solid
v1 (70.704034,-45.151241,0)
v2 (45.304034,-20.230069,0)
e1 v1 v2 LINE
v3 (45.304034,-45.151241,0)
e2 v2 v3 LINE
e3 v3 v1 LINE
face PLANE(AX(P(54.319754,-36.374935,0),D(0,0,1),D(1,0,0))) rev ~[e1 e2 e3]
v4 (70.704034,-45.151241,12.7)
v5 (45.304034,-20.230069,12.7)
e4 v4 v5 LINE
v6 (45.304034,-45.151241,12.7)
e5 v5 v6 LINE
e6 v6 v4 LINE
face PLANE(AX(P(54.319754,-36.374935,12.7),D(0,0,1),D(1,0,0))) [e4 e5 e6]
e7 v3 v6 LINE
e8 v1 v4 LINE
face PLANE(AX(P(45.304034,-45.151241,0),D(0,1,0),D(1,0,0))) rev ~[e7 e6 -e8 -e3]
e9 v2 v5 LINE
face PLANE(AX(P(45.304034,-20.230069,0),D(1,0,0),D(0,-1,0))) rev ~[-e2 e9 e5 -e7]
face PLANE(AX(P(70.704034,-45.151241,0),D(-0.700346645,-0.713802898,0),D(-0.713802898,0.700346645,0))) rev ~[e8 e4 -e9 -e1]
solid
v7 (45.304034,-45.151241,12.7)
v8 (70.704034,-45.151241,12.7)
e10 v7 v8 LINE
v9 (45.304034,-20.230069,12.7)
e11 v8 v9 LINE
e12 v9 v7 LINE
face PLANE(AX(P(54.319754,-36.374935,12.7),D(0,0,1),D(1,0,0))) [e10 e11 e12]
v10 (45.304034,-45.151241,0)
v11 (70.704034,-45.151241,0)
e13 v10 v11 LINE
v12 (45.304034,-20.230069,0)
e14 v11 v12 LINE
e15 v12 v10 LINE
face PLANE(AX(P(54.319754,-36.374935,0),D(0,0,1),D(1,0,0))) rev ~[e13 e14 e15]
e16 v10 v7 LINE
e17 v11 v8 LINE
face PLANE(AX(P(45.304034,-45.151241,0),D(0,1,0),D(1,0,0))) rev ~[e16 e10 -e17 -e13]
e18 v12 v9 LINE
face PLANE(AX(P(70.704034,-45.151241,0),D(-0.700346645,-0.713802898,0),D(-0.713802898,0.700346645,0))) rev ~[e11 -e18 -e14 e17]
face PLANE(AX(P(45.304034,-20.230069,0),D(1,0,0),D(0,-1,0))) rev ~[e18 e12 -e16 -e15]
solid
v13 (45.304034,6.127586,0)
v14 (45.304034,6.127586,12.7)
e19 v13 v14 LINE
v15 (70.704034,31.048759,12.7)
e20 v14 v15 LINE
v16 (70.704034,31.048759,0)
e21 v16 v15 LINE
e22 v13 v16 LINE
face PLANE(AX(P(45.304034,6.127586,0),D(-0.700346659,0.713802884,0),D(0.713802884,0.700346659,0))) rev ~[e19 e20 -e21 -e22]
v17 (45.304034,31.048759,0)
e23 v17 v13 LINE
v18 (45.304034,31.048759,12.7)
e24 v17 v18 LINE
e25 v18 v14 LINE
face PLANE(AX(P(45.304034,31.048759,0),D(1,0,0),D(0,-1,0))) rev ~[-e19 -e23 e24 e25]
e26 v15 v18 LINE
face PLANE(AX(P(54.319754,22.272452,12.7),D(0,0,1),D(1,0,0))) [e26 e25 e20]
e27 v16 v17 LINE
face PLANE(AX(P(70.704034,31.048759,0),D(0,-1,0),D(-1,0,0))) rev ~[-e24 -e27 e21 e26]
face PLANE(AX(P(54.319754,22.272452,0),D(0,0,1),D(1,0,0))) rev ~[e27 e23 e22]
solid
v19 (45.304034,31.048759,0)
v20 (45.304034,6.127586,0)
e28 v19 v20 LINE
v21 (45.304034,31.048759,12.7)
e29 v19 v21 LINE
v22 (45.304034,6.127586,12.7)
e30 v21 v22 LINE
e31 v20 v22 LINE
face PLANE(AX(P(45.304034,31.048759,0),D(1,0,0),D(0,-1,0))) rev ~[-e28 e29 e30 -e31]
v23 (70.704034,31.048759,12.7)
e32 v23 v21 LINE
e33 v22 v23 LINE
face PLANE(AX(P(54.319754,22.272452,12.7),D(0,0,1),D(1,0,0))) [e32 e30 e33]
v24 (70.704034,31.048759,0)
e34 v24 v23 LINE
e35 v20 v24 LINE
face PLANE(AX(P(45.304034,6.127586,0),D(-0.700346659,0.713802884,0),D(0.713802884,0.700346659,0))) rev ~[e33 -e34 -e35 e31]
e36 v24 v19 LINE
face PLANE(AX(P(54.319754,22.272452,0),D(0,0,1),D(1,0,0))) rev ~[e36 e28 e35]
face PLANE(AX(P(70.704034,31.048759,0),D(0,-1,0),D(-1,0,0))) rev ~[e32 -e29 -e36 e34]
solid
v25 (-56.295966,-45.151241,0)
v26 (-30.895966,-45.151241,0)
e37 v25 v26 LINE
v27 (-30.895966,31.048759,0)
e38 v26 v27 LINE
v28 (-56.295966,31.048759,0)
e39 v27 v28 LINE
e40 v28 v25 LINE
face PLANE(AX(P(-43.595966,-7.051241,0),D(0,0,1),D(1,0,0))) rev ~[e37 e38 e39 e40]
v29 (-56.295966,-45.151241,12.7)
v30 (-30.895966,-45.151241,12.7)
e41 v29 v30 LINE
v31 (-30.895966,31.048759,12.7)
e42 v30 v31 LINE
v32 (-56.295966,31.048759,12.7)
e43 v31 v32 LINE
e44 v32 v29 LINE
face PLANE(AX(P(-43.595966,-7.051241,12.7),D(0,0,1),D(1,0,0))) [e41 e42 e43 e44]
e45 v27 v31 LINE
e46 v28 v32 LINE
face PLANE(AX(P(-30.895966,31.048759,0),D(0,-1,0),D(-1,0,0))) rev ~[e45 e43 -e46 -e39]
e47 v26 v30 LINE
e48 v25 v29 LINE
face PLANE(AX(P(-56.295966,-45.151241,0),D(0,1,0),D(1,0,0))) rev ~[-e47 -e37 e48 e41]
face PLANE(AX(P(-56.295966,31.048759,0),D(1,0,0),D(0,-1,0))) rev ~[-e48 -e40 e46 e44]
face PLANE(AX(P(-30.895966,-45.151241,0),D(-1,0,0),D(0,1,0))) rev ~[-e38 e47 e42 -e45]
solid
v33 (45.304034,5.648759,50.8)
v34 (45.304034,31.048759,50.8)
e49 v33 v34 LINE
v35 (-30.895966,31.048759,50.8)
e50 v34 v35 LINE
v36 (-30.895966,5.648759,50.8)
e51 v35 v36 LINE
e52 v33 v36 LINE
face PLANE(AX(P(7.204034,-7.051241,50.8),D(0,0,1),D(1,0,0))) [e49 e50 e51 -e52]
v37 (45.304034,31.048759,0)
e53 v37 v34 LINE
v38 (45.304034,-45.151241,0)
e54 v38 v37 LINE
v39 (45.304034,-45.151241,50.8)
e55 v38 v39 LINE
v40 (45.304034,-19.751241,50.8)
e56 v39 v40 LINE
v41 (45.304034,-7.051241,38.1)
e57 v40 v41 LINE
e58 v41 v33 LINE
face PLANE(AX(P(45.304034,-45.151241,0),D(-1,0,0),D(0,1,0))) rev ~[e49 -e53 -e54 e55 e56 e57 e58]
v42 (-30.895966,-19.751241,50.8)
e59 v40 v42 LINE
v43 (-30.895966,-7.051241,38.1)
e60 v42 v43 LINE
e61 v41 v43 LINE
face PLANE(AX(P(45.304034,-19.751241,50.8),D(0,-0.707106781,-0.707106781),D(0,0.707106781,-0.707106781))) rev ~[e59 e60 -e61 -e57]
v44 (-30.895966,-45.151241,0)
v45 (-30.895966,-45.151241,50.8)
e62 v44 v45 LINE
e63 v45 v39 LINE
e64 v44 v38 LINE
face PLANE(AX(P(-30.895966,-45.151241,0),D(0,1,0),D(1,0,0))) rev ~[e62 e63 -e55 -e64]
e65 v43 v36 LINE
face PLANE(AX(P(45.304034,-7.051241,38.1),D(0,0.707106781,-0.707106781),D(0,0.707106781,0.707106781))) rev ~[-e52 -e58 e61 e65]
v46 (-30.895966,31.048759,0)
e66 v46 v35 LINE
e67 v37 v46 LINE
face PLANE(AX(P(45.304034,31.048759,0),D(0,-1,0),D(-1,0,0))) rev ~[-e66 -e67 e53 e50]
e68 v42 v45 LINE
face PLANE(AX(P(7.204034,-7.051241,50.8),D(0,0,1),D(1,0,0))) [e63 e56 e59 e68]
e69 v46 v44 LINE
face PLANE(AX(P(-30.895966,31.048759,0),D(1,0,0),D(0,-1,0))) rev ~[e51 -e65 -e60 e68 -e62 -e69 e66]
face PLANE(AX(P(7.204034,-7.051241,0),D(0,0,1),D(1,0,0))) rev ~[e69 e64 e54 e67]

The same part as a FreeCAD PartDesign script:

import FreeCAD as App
import Part
import Sketcher
Q = App.Units.Quantity

doc = App.newDocument("Part")
body = doc.addObject("PartDesign::Body", "Body")
body.AllowCompound = True

# Sketch on XY plane
sketch1 = doc.addObject("Sketcher::SketchObject", "Sketch")
body.addObject(sketch1)
sketch1.AttachmentSupport = (doc.XY_Plane, [""])
sketch1.MapMode = "FlatFace"
sketch1.addGeometry(Part.LineSegment(App.Vector(70.704034, -45.151241, 0), App.Vector(45.304034, -20.230069, 0)), False)
sketch1.addGeometry(Part.LineSegment(App.Vector(45.304034, -20.230069, 0), App.Vector(45.304034, -45.151241, 0)), False)
sketch1.addGeometry(Part.LineSegment(App.Vector(45.304034, -45.151241, 0), App.Vector(70.704034, -45.151241, 0)), False)
sketch1.addGeometry(Part.LineSegment(App.Vector(70.704034, 31.048759, 0), App.Vector(45.304034, 31.048759, 0)), False)
sketch1.addGeometry(Part.LineSegment(App.Vector(45.304034, 31.048759, 0), App.Vector(45.304034, 6.127586, 0)), False)
sketch1.addGeometry(Part.LineSegment(App.Vector(45.304034, 6.127586, 0), App.Vector(70.704034, 31.048759, 0)), False)
sketch1.addConstraint(Sketcher.Constraint("Coincident", 0, 2, 1, 1))
sketch1.addConstraint(Sketcher.Constraint("Coincident", 1, 2, 2, 1))
sketch1.addConstraint(Sketcher.Constraint("Coincident", 2, 2, 0, 1))
sketch1.addConstraint(Sketcher.Constraint("Coincident", 3, 2, 4, 1))
sketch1.addConstraint(Sketcher.Constraint("Coincident", 4, 2, 5, 1))
sketch1.addConstraint(Sketcher.Constraint("Coincident", 5, 2, 3, 1))
sketch1.addConstraint(Sketcher.Constraint("Vertical", 1))
sketch1.addConstraint(Sketcher.Constraint("Horizontal", 2))
sketch1.addConstraint(Sketcher.Constraint("Horizontal", 3))
sketch1.addConstraint(Sketcher.Constraint("Vertical", 4))
sketch1.addConstraint(Sketcher.Constraint("Vertical", 1, 2, 3, 2))
sketch1.addConstraint(Sketcher.Constraint("Vertical", 2, 2, 5, 2))
sketch1.addConstraint(Sketcher.Constraint("Equal", 1, 4))
sketch1.addConstraint(Sketcher.Constraint("DistanceX", 2, 1, 2, 2, Q("1 in")))
sketch1.addConstraint(Sketcher.Constraint("DistanceY", 1, 2, 3, 2, Q("3 in")))
sketch1.addConstraint(Sketcher.Constraint("DistanceY", 1, 2, 1, 1, 24.921172))
sketch1.addConstraint(Sketcher.Constraint("DistanceY", 0, 2, -1, 1, 20.230069))
sketch1.addConstraint(Sketcher.Constraint("DistanceX", -1, 1, 0, 2, 45.304034))
pad1 = doc.addObject("PartDesign::Pad", "Pad")
body.addObject(pad1)
pad1.Profile = sketch1
pad1.Length = Q("0.5 in")
body2 = doc.addObject("PartDesign::Body", "Body001")
body2.AllowCompound = True

# Sketch on XY plane
sketch2 = doc.addObject("Sketcher::SketchObject", "Sketch001")
body2.addObject(sketch2)
sketch2.AttachmentSupport = (doc.getObject("XY_Plane001"), [""])
sketch2.MapMode = "FlatFace"
sketch2.addGeometry(Part.LineSegment(App.Vector(70.704034, -45.151241, 0), App.Vector(45.304034, -20.230069, 0)), False)
sketch2.addGeometry(Part.LineSegment(App.Vector(45.304034, -20.230069, 0), App.Vector(45.304034, -45.151241, 0)), False)
sketch2.addGeometry(Part.LineSegment(App.Vector(45.304034, -45.151241, 0), App.Vector(70.704034, -45.151241, 0)), False)
sketch2.addGeometry(Part.LineSegment(App.Vector(70.704034, 31.048759, 0), App.Vector(45.304034, 31.048759, 0)), False)
sketch2.addGeometry(Part.LineSegment(App.Vector(45.304034, 31.048759, 0), App.Vector(45.304034, 6.127586, 0)), False)
sketch2.addGeometry(Part.LineSegment(App.Vector(45.304034, 6.127586, 0), App.Vector(70.704034, 31.048759, 0)), False)
sketch2.addGeometry(Part.LineSegment(App.Vector(-30.895966, 31.048759, 0), App.Vector(-56.295966, 31.048759, 0)), False)
sketch2.addGeometry(Part.LineSegment(App.Vector(-56.295966, 31.048759, 0), App.Vector(-56.295966, -45.151241, 0)), False)
sketch2.addGeometry(Part.LineSegment(App.Vector(-56.295966, -45.151241, 0), App.Vector(-30.895966, -45.151241, 0)), False)
sketch2.addGeometry(Part.LineSegment(App.Vector(-30.895966, -45.151241, 0), App.Vector(-30.895966, 31.048759, 0)), False)
sketch2.addConstraint(Sketcher.Constraint("Coincident", 0, 2, 1, 1))
sketch2.addConstraint(Sketcher.Constraint("Coincident", 1, 2, 2, 1))
sketch2.addConstraint(Sketcher.Constraint("Coincident", 2, 2, 0, 1))
sketch2.addConstraint(Sketcher.Constraint("Coincident", 3, 2, 4, 1))
sketch2.addConstraint(Sketcher.Constraint("Coincident", 4, 2, 5, 1))
sketch2.addConstraint(Sketcher.Constraint("Coincident", 5, 2, 3, 1))
sketch2.addConstraint(Sketcher.Constraint("Coincident", 6, 2, 7, 1))
sketch2.addConstraint(Sketcher.Constraint("Coincident", 7, 2, 8, 1))
sketch2.addConstraint(Sketcher.Constraint("Coincident", 8, 2, 9, 1))
sketch2.addConstraint(Sketcher.Constraint("Coincident", 9, 2, 6, 1))
sketch2.addConstraint(Sketcher.Constraint("Vertical", 1))
sketch2.addConstraint(Sketcher.Constraint("Horizontal", 2))
sketch2.addConstraint(Sketcher.Constraint("Horizontal", 3))
sketch2.addConstraint(Sketcher.Constraint("Vertical", 4))
sketch2.addConstraint(Sketcher.Constraint("Horizontal", 6))
sketch2.addConstraint(Sketcher.Constraint("Vertical", 7))
sketch2.addConstraint(Sketcher.Constraint("Horizontal", 8))
sketch2.addConstraint(Sketcher.Constraint("Vertical", 9))
sketch2.addConstraint(Sketcher.Constraint("Horizontal", 5, 2, 6, 2))
sketch2.addConstraint(Sketcher.Constraint("Horizontal", 2, 2, 7, 2))
sketch2.addConstraint(Sketcher.Constraint("Vertical", 1, 2, 3, 2))
sketch2.addConstraint(Sketcher.Constraint("Vertical", 2, 2, 5, 2))
sketch2.addConstraint(Sketcher.Constraint("Equal", 3, 6))
sketch2.addConstraint(Sketcher.Constraint("Equal", 1, 4))
sketch2.addConstraint(Sketcher.Constraint("DistanceX", 2, 1, 2, 2, Q("1 in")))
sketch2.addConstraint(Sketcher.Constraint("DistanceY", 7, 2, 7, 1, Q("3 in")))
sketch2.addConstraint(Sketcher.Constraint("DistanceX", 6, 2, 3, 2, Q("4 in")))
sketch2.addConstraint(Sketcher.Constraint("DistanceY", 1, 2, 1, 1, 24.921172))
sketch2.addConstraint(Sketcher.Constraint("DistanceY", 0, 2, -1, 1, 20.230069))
sketch2.addConstraint(Sketcher.Constraint("DistanceX", -1, 1, 0, 2, 45.304034))
pad2 = doc.addObject("PartDesign::Pad", "Pad001")
body2.addObject(pad2)
pad2.Profile = sketch2
pad2.Length = Q("0.5 in")
body3 = doc.addObject("PartDesign::Body", "Body002")

# Sketch on XY plane
sketch3 = doc.addObject("Sketcher::SketchObject", "Sketch002")
body3.addObject(sketch3)
sketch3.AttachmentSupport = (doc.getObject("XY_Plane002"), [""])
sketch3.MapMode = "FlatFace"
sketch3.addGeometry(Part.LineSegment(App.Vector(45.304034, 31.048759, 0), App.Vector(-30.895966, 31.048759, 0)), False)
sketch3.addGeometry(Part.LineSegment(App.Vector(-30.895966, 31.048759, 0), App.Vector(-30.895966, -45.151241, 0)), False)
sketch3.addGeometry(Part.LineSegment(App.Vector(-30.895966, -45.151241, 0), App.Vector(45.304034, -45.151241, 0)), False)
sketch3.addGeometry(Part.LineSegment(App.Vector(45.304034, -45.151241, 0), App.Vector(45.304034, 31.048759, 0)), False)
sketch3.addConstraint(Sketcher.Constraint("Coincident", 0, 2, 1, 1))
sketch3.addConstraint(Sketcher.Constraint("Coincident", 1, 2, 2, 1))
sketch3.addConstraint(Sketcher.Constraint("Coincident", 2, 2, 3, 1))
sketch3.addConstraint(Sketcher.Constraint("Coincident", 3, 2, 0, 1))
sketch3.addConstraint(Sketcher.Constraint("Horizontal", 0))
sketch3.addConstraint(Sketcher.Constraint("Vertical", 1))
sketch3.addConstraint(Sketcher.Constraint("Horizontal", 2))
sketch3.addConstraint(Sketcher.Constraint("Vertical", 3))
sketch3.addConstraint(Sketcher.Constraint("Equal", 2, 1))
sketch3.addConstraint(Sketcher.Constraint("DistanceX", 0, 2, 0, 1, Q("3 in")))
sketch3.addConstraint(Sketcher.Constraint("DistanceY", -1, 1, 0, 2, 31.048759))
sketch3.addConstraint(Sketcher.Constraint("DistanceX", 0, 2, -1, 1, 30.895966))
pad3 = doc.addObject("PartDesign::Pad", "Pad002")
body3.addObject(pad3)
pad3.Profile = sketch3
pad3.Length = Q("2 in")

# Sketch on YZ plane
sketch4 = doc.addObject("Sketcher::SketchObject", "Sketch003")
body3.addObject(sketch4)
sketch4.AttachmentSupport = (doc.getObject("YZ_Plane002"), [""])
sketch4.MapMode = "FlatFace"
sketch4.AttachmentOffset = App.Placement(App.Vector(0, 0, 45.304034), App.Rotation())
sketch4.addGeometry(Part.LineSegment(App.Vector(5.648759, 50.8, 0), App.Vector(-19.751241, 50.8, 0)), False)
sketch4.addGeometry(Part.LineSegment(App.Vector(-19.751241, 50.8, 0), App.Vector(-7.051241, 38.1, 0)), False)
sketch4.addGeometry(Part.LineSegment(App.Vector(-7.051241, 38.1, 0), App.Vector(5.648759, 50.8, 0)), False)
sketch4.addConstraint(Sketcher.Constraint("Coincident", 0, 2, 1, 1))
sketch4.addConstraint(Sketcher.Constraint("Coincident", 1, 2, 2, 1))
sketch4.addConstraint(Sketcher.Constraint("Coincident", 2, 2, 0, 1))
sketch4.addConstraint(Sketcher.Constraint("Horizontal", 0))
sketch4.addConstraint(Sketcher.Constraint("Perpendicular", 1, 2))
sketch4.addConstraint(Sketcher.Constraint("Equal", 1, 2))
sketch4.addConstraint(Sketcher.Constraint("DistanceX", 0, 2, 0, 1, Q("1 in")))
sketch4.addConstraint(Sketcher.Constraint("DistanceY", -1, 1, 0, 2, Q("2 in")))
sketch4.addConstraint(Sketcher.Constraint("DistanceX", 0, 2, -1, 1, 19.751241))
pocket1 = doc.addObject("PartDesign::Pocket", "Pocket")
body3.addObject(pocket1)
pocket1.Profile = sketch4
pocket1.Type = "ThroughAll"

doc.recompute()
